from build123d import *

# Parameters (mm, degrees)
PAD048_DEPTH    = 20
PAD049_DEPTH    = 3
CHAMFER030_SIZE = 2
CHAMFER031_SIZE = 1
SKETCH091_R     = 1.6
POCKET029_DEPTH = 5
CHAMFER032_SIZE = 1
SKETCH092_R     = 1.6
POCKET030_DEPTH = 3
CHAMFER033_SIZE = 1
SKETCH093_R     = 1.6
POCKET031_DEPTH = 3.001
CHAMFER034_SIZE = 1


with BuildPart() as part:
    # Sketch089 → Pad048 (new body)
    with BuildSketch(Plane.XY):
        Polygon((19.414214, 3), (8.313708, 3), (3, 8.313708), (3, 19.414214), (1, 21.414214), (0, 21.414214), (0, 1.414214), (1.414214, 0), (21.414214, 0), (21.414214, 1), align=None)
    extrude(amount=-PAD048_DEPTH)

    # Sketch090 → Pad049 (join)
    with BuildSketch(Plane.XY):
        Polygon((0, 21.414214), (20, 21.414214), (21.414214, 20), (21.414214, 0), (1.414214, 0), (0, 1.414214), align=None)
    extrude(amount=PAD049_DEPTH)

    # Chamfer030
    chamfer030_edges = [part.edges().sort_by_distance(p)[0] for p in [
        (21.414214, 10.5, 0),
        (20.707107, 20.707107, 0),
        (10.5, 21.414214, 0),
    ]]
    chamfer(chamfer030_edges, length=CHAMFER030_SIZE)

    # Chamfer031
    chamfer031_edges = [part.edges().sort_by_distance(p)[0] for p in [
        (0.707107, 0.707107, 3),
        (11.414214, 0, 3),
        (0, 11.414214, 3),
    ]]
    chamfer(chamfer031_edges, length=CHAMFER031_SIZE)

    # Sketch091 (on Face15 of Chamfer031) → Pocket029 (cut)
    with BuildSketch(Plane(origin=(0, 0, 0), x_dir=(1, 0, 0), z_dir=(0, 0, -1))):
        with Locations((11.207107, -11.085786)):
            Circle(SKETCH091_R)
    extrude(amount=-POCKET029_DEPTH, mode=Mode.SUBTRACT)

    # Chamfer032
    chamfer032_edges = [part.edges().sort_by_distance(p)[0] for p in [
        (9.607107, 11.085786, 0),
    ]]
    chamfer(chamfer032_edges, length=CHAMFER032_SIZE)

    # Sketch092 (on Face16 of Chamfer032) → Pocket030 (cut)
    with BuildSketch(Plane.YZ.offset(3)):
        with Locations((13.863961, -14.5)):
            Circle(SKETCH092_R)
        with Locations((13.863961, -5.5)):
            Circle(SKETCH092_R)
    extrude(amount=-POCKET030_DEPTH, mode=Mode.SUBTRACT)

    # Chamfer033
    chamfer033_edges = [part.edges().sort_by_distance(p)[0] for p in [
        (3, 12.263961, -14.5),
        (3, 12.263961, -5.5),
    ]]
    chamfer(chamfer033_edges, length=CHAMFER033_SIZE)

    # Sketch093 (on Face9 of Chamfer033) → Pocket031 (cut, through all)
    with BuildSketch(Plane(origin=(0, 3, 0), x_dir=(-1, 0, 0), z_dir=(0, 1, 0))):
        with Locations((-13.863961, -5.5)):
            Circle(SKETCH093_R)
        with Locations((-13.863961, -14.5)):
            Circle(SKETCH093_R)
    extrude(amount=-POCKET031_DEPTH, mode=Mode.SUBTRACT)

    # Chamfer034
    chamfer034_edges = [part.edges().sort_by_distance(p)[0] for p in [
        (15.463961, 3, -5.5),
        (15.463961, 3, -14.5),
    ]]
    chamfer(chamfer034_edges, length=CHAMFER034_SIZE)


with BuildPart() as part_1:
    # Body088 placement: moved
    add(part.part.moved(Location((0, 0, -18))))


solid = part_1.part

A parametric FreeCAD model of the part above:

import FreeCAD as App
import Part
import Sketcher
from FreeCAD import Vector
Q = App.Units.Quantity


def edges_at(feature, points):
    """Names of the edges that pass closest to the given points."""
    edges = feature.Shape.Edges
    near = lambda p: min(range(len(edges)), key=lambda i: edges[i].distToShape(Part.Vertex(*p))[0])
    return sorted({f"Edge{near(p) + 1}" for p in points})


def add_polygon(sketch, points):
    """Adds a closed chain of lines whose ends are joined by coincident constraints."""
    first, n = sketch.GeometryCount, len(points)
    for a, b in zip(points, points[1:] + points[:1]):
        sketch.addGeometry(Part.LineSegment(App.Vector(*a, 0), App.Vector(*b, 0)), False)
    for i in range(n):
        sketch.addConstraint(Sketcher.Constraint("Coincident", first + i, 2, first + (i + 1) % n, 1))

doc = App.newDocument("Part")
body = doc.addObject("PartDesign::Body", "Body")

# Sketch on XY plane
sketch1 = body.newObject("Sketcher::SketchObject", "Sketch")
sketch1.AttachmentSupport = (doc.getObject("XY_Plane"), [""])
sketch1.MapMode = "FlatFace"
add_polygon(sketch1, [(19.4, 3), (8.3, 3), (3, 8.3), (3, 19.4), (1, 21.4), (0, 21.4), (0, 1.4), (1.4, 0), (21.4, 0), (21.4, 1)])  # lines 0-9
sketch1.addConstraint([
    Sketcher.Constraint("Horizontal", 0),
    Sketcher.Constraint("Vertical", 2),
    Sketcher.Constraint("Horizontal", 4),
    Sketcher.Constraint("Vertical", 5),
    Sketcher.Constraint("Horizontal", 7),
    Sketcher.Constraint("Vertical", 8),
    Sketcher.Constraint("PointOnObject", 4, 2, -2),
    Sketcher.Constraint("PointOnObject", 6, 2, -1),
    Sketcher.Constraint("Parallel", 1, 3),
    Sketcher.Constraint("Parallel", 3, 6),
    Sketcher.Constraint("Parallel", 6, 9),
    Sketcher.Constraint("Equal", 0, 2),
    Sketcher.Constraint("Equal", 7, 5),
    Sketcher.Constraint("Equal", 4, 8),
    Sketcher.Constraint("Equal", 3, 9),
    Sketcher.Constraint("DistanceX", 4, 2, 4, 1, 1.0),
    Sketcher.Constraint("DistanceX", 7, 1, 7, 2, 20.0),
    Sketcher.Constraint("Distance", 6, 2.000001),
    Sketcher.Constraint("DistanceY", -1, 1, 0, 2, 3.0),
    Sketcher.Constraint("DistanceX", 0, 2, 0, 1, 11.100506),
])
pad1 = body.newObject("PartDesign::Pad", "Pad")
pad1.Profile = sketch1
pad1.Length = 20
pad1.Reversed = True

# Sketch on XY plane
sketch2 = body.newObject("Sketcher::SketchObject", "Sketch001")
sketch2.AttachmentSupport = (doc.getObject("XY_Plane"), [""])
sketch2.MapMode = "FlatFace"
add_polygon(sketch2, [(20, 21.4), (0, 21.4), (0, 1.4), (1.4, 0), (21.4, 0), (21.4, 20)])  # lines 0-5
sketch2.addConstraint([
    Sketcher.Constraint("Horizontal", 0),
    Sketcher.Constraint("Vertical", 1),
    Sketcher.Constraint("Horizontal", 3),
    Sketcher.Constraint("Vertical", 4),
    Sketcher.Constraint("PointOnObject", 0, 2, -2),
    Sketcher.Constraint("PointOnObject", 2, 2, -1),
    Sketcher.Constraint("Parallel", 2, 5),
    Sketcher.Constraint("Equal", 0, 3),
    Sketcher.Constraint("Equal", 3, 1),
    Sketcher.Constraint("DistanceX", 0, 2, 0, 1, 20.0),
    Sketcher.Constraint("Angle", 2, Q("-45 deg")),
    Sketcher.Constraint("Distance", 2, 2.000001),
])
pad2 = body.newObject("PartDesign::Pad", "Pad001")
pad2.Profile = sketch2
pad2.Length = 3
doc.recompute()

chamfer = body.newObject("PartDesign::Chamfer", "Chamfer")
chamfer.Base = (pad2, edges_at(pad2, [(21.414, 10.5, 0), (20.707, 20.707, 0), (10.5, 21.414, 0)]))
chamfer.Size = 2
doc.recompute()

chamfer2 = body.newObject("PartDesign::Chamfer", "Chamfer001")
chamfer2.Base = (chamfer, edges_at(chamfer, [(0.707, 0.707, 3), (11.414, 0, 3), (0, 11.414, 3)]))
chamfer2.Size = 1

# Sketch on XY plane
sketch3 = body.newObject("Sketcher::SketchObject", "Sketch002")
sketch3.AttachmentSupport = (doc.getObject("XY_Plane"), [""])
sketch3.MapMode = "FlatFace"
sketch3.addGeometry(Part.Circle(Vector(11.2, 11.1, 0), Vector(0, 0, 1), 1.6), False)
sketch3.addConstraint([
    Sketcher.Constraint("Diameter", 0, 3.2),
    Sketcher.Constraint("DistanceX", -1, 1, 0, 3, 11.207107),
    Sketcher.Constraint("DistanceY", -1, 1, 0, 3, 11.085786),
])
pocket1 = body.newObject("PartDesign::Pocket", "Pocket")
pocket1.Profile = sketch3
pocket1.Length = 5
pocket1.Reversed = True
doc.recompute()

chamfer3 = body.newObject("PartDesign::Chamfer", "Chamfer002")
chamfer3.Base = (pocket1, edges_at(pocket1, [(9.607, 11.086, 0)]))
chamfer3.Size = 1

# Sketch on YZ plane
sketch4 = body.newObject("Sketcher::SketchObject", "Sketch003")
sketch4.AttachmentSupport = (doc.getObject("YZ_Plane"), [""])
sketch4.MapMode = "FlatFace"
sketch4.AttachmentOffset = App.Placement(Vector(0, 0, 3), App.Rotation())
sketch4.addGeometry([
    Part.Circle(Vector(13.9, -14.5, 0), Vector(0, 0, 1), 1.6),
    Part.Circle(Vector(13.9, -5.5, 0), Vector(0, 0, 1), 1.6),
], False)
sketch4.addConstraint([
    Sketcher.Constraint("Equal", 0, 1),
    Sketcher.Constraint("Vertical", 0, 3, 1, 3),
    Sketcher.Constraint("Diameter", 0, 3.2),
    Sketcher.Constraint("DistanceY", 0, 3, 1, 3, 9.0),
    Sketcher.Constraint("DistanceY", 0, 3, -1, 1, 14.5),
    Sketcher.Constraint("DistanceX", -1, 1, 0, 3, 13.863961),
])
pocket2 = body.newObject("PartDesign::Pocket", "Pocket001")
pocket2.Profile = sketch4
pocket2.Length = 3
doc.recompute()

chamfer4 = body.newObject("PartDesign::Chamfer", "Chamfer003")
chamfer4.Base = (pocket2, edges_at(pocket2, [(3, 12.264, -14.5), (3, 12.264, -5.5)]))
chamfer4.Size = 1

# Sketch on XZ plane
sketch5 = body.newObject("Sketcher::SketchObject", "Sketch004")
sketch5.AttachmentSupport = (doc.getObject("XZ_Plane"), [""])
sketch5.MapMode = "FlatFace"
sketch5.AttachmentOffset = App.Placement(Vector(0, 0, -3), App.Rotation())
sketch5.addGeometry([
    Part.Circle(Vector(13.9, -5.5, 0), Vector(0, 0, 1), 1.6),
    Part.Circle(Vector(13.9, -14.5, 0), Vector(0, 0, 1), 1.6),
], False)
sketch5.addConstraint([
    Sketcher.Constraint("Equal", 0, 1),
    Sketcher.Constraint("Vertical", 0, 3, 1, 3),
    Sketcher.Constraint("Diameter", 0, 3.2),
    Sketcher.Constraint("DistanceY", 1, 3, 0, 3, 9.0),
    Sketcher.Constraint("DistanceY", 0, 3, -1, 1, 5.5),
    Sketcher.Constraint("DistanceX", -1, 1, 0, 3, 13.863961),
])
pocket3 = body.newObject("PartDesign::Pocket", "Pocket002")
pocket3.Profile = sketch5
pocket3.Type = "ThroughAll"
pocket3.Reversed = True
doc.recompute()

chamfer5 = body.newObject("PartDesign::Chamfer", "Chamfer004")
chamfer5.Base = (pocket3, edges_at(pocket3, [(15.464, 3, -5.5), (15.464, 3, -14.5)]))
chamfer5.Size = 1
body2 = doc.addObject("PartDesign::Body", "Body001")
doc.recompute()

body.Placement = App.Placement(Vector(0, 0, -18), App.Rotation(Vector(0, 0, 1), 0))
boolean = body2.newObject("PartDesign::Boolean", "Boolean")
boolean.Type = "Fuse"
boolean.addObjects([body])

doc.recompute()
